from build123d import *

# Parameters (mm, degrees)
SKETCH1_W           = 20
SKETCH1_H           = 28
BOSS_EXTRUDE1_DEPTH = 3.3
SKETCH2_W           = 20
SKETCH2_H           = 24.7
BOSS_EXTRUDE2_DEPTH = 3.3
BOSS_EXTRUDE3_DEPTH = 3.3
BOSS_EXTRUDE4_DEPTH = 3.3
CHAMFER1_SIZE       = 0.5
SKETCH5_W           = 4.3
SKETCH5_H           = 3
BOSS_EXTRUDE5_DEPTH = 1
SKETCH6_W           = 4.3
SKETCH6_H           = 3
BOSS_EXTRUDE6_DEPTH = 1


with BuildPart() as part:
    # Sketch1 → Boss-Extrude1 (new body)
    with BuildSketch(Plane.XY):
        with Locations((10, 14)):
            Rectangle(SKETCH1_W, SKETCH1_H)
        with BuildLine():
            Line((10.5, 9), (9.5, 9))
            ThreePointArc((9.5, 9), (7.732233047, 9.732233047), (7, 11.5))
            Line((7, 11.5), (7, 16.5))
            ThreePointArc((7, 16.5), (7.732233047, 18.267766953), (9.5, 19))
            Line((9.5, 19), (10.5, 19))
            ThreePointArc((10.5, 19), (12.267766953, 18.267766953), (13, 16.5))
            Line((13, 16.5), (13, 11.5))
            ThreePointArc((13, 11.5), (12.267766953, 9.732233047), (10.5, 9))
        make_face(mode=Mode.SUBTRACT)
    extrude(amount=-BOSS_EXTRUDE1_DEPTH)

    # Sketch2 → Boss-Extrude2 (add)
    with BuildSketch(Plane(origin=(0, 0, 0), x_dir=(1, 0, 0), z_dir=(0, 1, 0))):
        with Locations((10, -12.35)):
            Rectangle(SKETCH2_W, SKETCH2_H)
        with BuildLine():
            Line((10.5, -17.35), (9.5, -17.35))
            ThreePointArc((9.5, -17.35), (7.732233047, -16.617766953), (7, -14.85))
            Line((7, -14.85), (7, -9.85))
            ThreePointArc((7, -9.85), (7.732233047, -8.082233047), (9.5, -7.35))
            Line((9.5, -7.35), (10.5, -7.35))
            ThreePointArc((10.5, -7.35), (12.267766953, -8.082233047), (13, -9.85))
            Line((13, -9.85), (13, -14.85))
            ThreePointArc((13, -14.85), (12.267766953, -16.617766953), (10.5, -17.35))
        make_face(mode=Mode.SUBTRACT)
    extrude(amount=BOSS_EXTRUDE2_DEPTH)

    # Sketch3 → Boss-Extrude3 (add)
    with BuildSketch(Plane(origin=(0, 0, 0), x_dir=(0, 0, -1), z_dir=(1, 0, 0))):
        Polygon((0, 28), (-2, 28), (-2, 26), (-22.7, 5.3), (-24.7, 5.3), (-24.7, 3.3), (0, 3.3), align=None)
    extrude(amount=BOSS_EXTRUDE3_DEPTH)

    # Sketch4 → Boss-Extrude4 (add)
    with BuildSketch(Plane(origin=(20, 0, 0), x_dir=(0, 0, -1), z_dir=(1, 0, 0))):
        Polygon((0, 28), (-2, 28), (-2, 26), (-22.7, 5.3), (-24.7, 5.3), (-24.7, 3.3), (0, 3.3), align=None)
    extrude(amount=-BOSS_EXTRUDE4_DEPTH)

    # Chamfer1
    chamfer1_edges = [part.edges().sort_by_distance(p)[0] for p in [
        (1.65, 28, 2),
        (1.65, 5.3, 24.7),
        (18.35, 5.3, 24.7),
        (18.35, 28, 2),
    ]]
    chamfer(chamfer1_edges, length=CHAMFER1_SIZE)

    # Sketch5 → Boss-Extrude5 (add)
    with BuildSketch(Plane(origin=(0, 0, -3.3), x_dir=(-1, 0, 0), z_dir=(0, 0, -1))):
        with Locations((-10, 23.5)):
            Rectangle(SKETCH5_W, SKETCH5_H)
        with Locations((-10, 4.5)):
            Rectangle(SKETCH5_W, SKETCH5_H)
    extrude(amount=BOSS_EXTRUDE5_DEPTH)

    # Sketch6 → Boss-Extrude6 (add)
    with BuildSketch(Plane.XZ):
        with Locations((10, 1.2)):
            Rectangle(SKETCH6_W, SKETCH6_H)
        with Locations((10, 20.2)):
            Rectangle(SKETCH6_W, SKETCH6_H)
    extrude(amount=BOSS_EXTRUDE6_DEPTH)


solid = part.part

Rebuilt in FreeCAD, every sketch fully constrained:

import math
import FreeCAD as App
import Part
import Sketcher
from FreeCAD import Vector


def edges_at(feature, points):
    """Names of the edges that pass closest to the given points."""
    edges = feature.Shape.Edges
    near = lambda p: min(range(len(edges)), key=lambda i: edges[i].distToShape(Part.Vertex(*p))[0])
    return sorted({f"Edge{near(p) + 1}" for p in points})

doc = App.newDocument("Part")
params = doc.addObject("Spreadsheet::Sheet", "Params")
for row, (alias, value) in enumerate([
    ("sketch1_radius", "2.5 mm"),
    ("sketch1_width", "20 mm"),
    ("sketch1_width2", "1 mm"),
    ("sketch1_height", "28 mm"),
    ("sketch1_height2", "5 mm"),
    ("pad1_length", "3.3 mm"),
    ("sketch2_radius", "2.5 mm"),
    ("sketch2_width", "20 mm"),
    ("sketch2_width2", "1 mm"),
    ("sketch2_height", "5 mm"),
    ("sketch2_height2", "24.7 mm"),
    ("pad2_length", "3.3 mm"),
    ("sketch3_width", "2 mm"),
    ("sketch3_width2", "24.7 mm"),
    ("pad3_length", "3.3 mm"),
    ("sketch4_width", "2 mm"),
    ("sketch4_width2", "24.7 mm"),
    ("pad4_length", "3.3 mm"),
    ("chamfer_size", "0.5 mm"),
    ("sketch5_height", "3 mm"),
    ("sketch5_width", "4.3 mm"),
    ("pad5_length", "1 mm"),
    ("sketch6_height", "3 mm"),
    ("sketch6_width", "4.3 mm"),
    ("pad6_length", "1 mm"),
], start=1):
    params.set(f"A{row}", alias)
    params.set(f"B{row}", "=" + value)
    params.setAlias(f"B{row}", alias)

body = doc.addObject("PartDesign::Body", "Body")

sketch1 = body.newObject("Sketcher::SketchObject", "Sketch")
sketch1.AttachmentSupport = (doc.getObject("XY_Plane"), [""])
sketch1.MapMode = "FlatFace"
sketch1.addGeometry(Part.LineSegment(Vector(0, 28, 0), Vector(0, 0, 0)), False)
sketch1.addGeometry(Part.LineSegment(Vector(0, 0, 0), Vector(20, 0, 0)), False)
sketch1.addGeometry(Part.LineSegment(Vector(20, 0, 0), Vector(20, 28, 0)), False)
sketch1.addGeometry(Part.LineSegment(Vector(20, 28, 0), Vector(0, 28, 0)), False)
sketch1.addGeometry(Part.ArcOfCircle(Part.Circle(Vector(10.5, 11.5, 0), Vector(0, 0, 1), 2.5), math.radians(-90), math.radians(0)), False)
sketch1.addGeometry(Part.LineSegment(Vector(10.5, 9, 0), Vector(9.5, 9, 0)), False)
sketch1.addGeometry(Part.ArcOfCircle(Part.Circle(Vector(9.5, 11.5, 0), Vector(0, 0, 1), 2.5), math.radians(180), math.radians(270)), False)
sketch1.addGeometry(Part.LineSegment(Vector(7, 11.5, 0), Vector(7, 16.5, 0)), False)
sketch1.addGeometry(Part.ArcOfCircle(Part.Circle(Vector(9.5, 16.5, 0), Vector(0, 0, 1), 2.5), math.radians(90), math.radians(180)), False)
sketch1.addGeometry(Part.LineSegment(Vector(9.5, 19, 0), Vector(10.5, 19, 0)), False)
sketch1.addGeometry(Part.ArcOfCircle(Part.Circle(Vector(10.5, 16.5, 0), Vector(0, 0, 1), 2.5), math.radians(0), math.radians(90)), False)
sketch1.addGeometry(Part.LineSegment(Vector(13, 16.5, 0), Vector(13, 11.5, 0)), False)
sketch1.addConstraint(Sketcher.Constraint("Coincident", 0, 2, 1, 1))
sketch1.addConstraint(Sketcher.Constraint("Coincident", 1, 2, 2, 1))
sketch1.addConstraint(Sketcher.Constraint("Coincident", 2, 2, 3, 1))
sketch1.addConstraint(Sketcher.Constraint("Coincident", 3, 2, 0, 1))
sketch1.addConstraint(Sketcher.Constraint("Tangent", 4, 1, 5, 1))
sketch1.addConstraint(Sketcher.Constraint("Tangent", 5, 2, 6, 2))
sketch1.addConstraint(Sketcher.Constraint("Tangent", 6, 1, 7, 1))
sketch1.addConstraint(Sketcher.Constraint("Tangent", 7, 2, 8, 2))
sketch1.addConstraint(Sketcher.Constraint("Tangent", 8, 1, 9, 1))
sketch1.addConstraint(Sketcher.Constraint("Tangent", 9, 2, 10, 2))
sketch1.addConstraint(Sketcher.Constraint("Tangent", 10, 1, 11, 1))
sketch1.addConstraint(Sketcher.Constraint("Tangent", 11, 2, 4, 2))
sketch1.addConstraint(Sketcher.Constraint("Vertical", 0))
sketch1.addConstraint(Sketcher.Constraint("Horizontal", 1))
sketch1.addConstraint(Sketcher.Constraint("Vertical", 2))
sketch1.addConstraint(Sketcher.Constraint("Horizontal", 3))
sketch1.addConstraint(Sketcher.Constraint("Horizontal", 5))
sketch1.addConstraint(Sketcher.Constraint("Vertical", 7))
sketch1.addConstraint(Sketcher.Constraint("Horizontal", 9))
sketch1.addConstraint(Sketcher.Constraint("Vertical", 11))
sketch1.addConstraint(Sketcher.Constraint("Coincident", 0, 2, -1, 1))
sketch1.addConstraint(Sketcher.Constraint("Equal", 4, 6))
sketch1.addConstraint(Sketcher.Constraint("Equal", 6, 8))
sketch1.addConstraint(Sketcher.Constraint("Equal", 8, 10))
sketch1.addConstraint(Sketcher.Constraint("Radius", 4, 2.5))
sketch1.addConstraint(Sketcher.Constraint("DistanceX", 1, 1, 1, 2, 20.0))
sketch1.addConstraint(Sketcher.Constraint("DistanceX", 5, 2, 5, 1, 1.0))
sketch1.addConstraint(Sketcher.Constraint("DistanceY", 0, 2, 0, 1, 28.0))
sketch1.addConstraint(Sketcher.Constraint("DistanceY", 7, 1, 7, 2, 5.0))
sketch1.addConstraint(Sketcher.Constraint("DistanceY", -1, 1, 4, 1, 9.0))
sketch1.addConstraint(Sketcher.Constraint("DistanceX", -1, 1, 6, 1, 7.0))
sketch1.setExpression("Constraints[24]", "Params.sketch1_radius")
sketch1.setExpression("Constraints[25]", "Params.sketch1_width")
sketch1.setExpression("Constraints[26]", "Params.sketch1_width2")
sketch1.setExpression("Constraints[27]", "Params.sketch1_height")
sketch1.setExpression("Constraints[28]", "Params.sketch1_height2")
pad1 = body.newObject("PartDesign::Pad", "Pad")
pad1.Profile = sketch1
pad1.setExpression("Length", "Params.pad1_length")
pad1.Reversed = True

sketch2 = body.newObject("Sketcher::SketchObject", "Sketch001")
sketch2.AttachmentSupport = (doc.getObject("XZ_Plane"), [""])
sketch2.MapMode = "FlatFace"
sketch2.addGeometry(Part.LineSegment(Vector(0, 0, 0), Vector(0, 24.7, 0)), False)
sketch2.addGeometry(Part.LineSegment(Vector(0, 24.7, 0), Vector(20, 24.7, 0)), False)
sketch2.addGeometry(Part.LineSegment(Vector(20, 24.7, 0), Vector(20, 0, 0)), False)
sketch2.addGeometry(Part.LineSegment(Vector(20, 0, 0), Vector(0, 0, 0)), False)
sketch2.addGeometry(Part.ArcOfCircle(Part.Circle(Vector(10.5, 14.85, 0), Vector(0, 0, 1), 2.5), math.radians(0), math.radians(90)), False)
sketch2.addGeometry(Part.LineSegment(Vector(10.5, 17.35, 0), Vector(9.5, 17.35, 0)), False)
sketch2.addGeometry(Part.ArcOfCircle(Part.Circle(Vector(9.5, 14.85, 0), Vector(0, 0, 1), 2.5), math.radians(90), math.radians(180)), False)
sketch2.addGeometry(Part.LineSegment(Vector(7, 14.85, 0), Vector(7, 9.85, 0)), False)
sketch2.addGeometry(Part.ArcOfCircle(Part.Circle(Vector(9.5, 9.85, 0), Vector(0, 0, 1), 2.5), math.radians(180), math.radians(270)), False)
sketch2.addGeometry(Part.LineSegment(Vector(9.5, 7.35, 0), Vector(10.5, 7.35, 0)), False)
sketch2.addGeometry(Part.ArcOfCircle(Part.Circle(Vector(10.5, 9.85, 0), Vector(0, 0, 1), 2.5), math.radians(-90), math.radians(0)), False)
sketch2.addGeometry(Part.LineSegment(Vector(13, 9.85, 0), Vector(13, 14.85, 0)), False)
sketch2.addConstraint(Sketcher.Constraint("Coincident", 0, 2, 1, 1))
sketch2.addConstraint(Sketcher.Constraint("Coincident", 1, 2, 2, 1))
sketch2.addConstraint(Sketcher.Constraint("Coincident", 2, 2, 3, 1))
sketch2.addConstraint(Sketcher.Constraint("Coincident", 3, 2, 0, 1))
sketch2.addConstraint(Sketcher.Constraint("Tangent", 4, 2, 5, 1))
sketch2.addConstraint(Sketcher.Constraint("Tangent", 5, 2, 6, 1))
sketch2.addConstraint(Sketcher.Constraint("Tangent", 6, 2, 7, 1))
sketch2.addConstraint(Sketcher.Constraint("Tangent", 7, 2, 8, 1))
sketch2.addConstraint(Sketcher.Constraint("Tangent", 8, 2, 9, 1))
sketch2.addConstraint(Sketcher.Constraint("Tangent", 9, 2, 10, 1))
sketch2.addConstraint(Sketcher.Constraint("Tangent", 10, 2, 11, 1))
sketch2.addConstraint(Sketcher.Constraint("Tangent", 11, 2, 4, 1))
sketch2.addConstraint(Sketcher.Constraint("Vertical", 0))
sketch2.addConstraint(Sketcher.Constraint("Horizontal", 1))
sketch2.addConstraint(Sketcher.Constraint("Vertical", 2))
sketch2.addConstraint(Sketcher.Constraint("Horizontal", 3))
sketch2.addConstraint(Sketcher.Constraint("Horizontal", 5))
sketch2.addConstraint(Sketcher.Constraint("Vertical", 7))
sketch2.addConstraint(Sketcher.Constraint("Horizontal", 9))
sketch2.addConstraint(Sketcher.Constraint("Vertical", 11))
sketch2.addConstraint(Sketcher.Constraint("Coincident", 3, 2, -1, 1))
sketch2.addConstraint(Sketcher.Constraint("Equal", 4, 6))
sketch2.addConstraint(Sketcher.Constraint("Equal", 6, 8))
sketch2.addConstraint(Sketcher.Constraint("Equal", 8, 10))
sketch2.addConstraint(Sketcher.Constraint("Radius", 4, 2.5))
sketch2.addConstraint(Sketcher.Constraint("DistanceX", 1, 1, 1, 2, 20.0))
sketch2.addConstraint(Sketcher.Constraint("DistanceX", 5, 2, 5, 1, 1.0))
sketch2.addConstraint(Sketcher.Constraint("DistanceY", 7, 2, 7, 1, 5.0))
sketch2.addConstraint(Sketcher.Constraint("DistanceY", 0, 1, 0, 2, 24.7))
sketch2.addConstraint(Sketcher.Constraint("DistanceX", -1, 1, 6, 2, 7.0))
sketch2.addConstraint(Sketcher.Constraint("DistanceY", -1, 1, 4, 3, 14.85))
sketch2.setExpression("Constraints[24]", "Params.sketch2_radius")
sketch2.setExpression("Constraints[25]", "Params.sketch2_width")
sketch2.setExpression("Constraints[26]", "Params.sketch2_width2")
sketch2.setExpression("Constraints[27]", "Params.sketch2_height")
sketch2.setExpression("Constraints[28]", "Params.sketch2_height2")
pad2 = body.newObject("PartDesign::Pad", "Pad001")
pad2.Profile = sketch2
pad2.setExpression("Length", "Params.pad2_length")
pad2.Reversed = True

sketch3 = body.newObject("Sketcher::SketchObject", "Sketch002")
sketch3.AttachmentSupport = (doc.getObject("YZ_Plane"), [""])
sketch3.MapMode = "FlatFace"
sketch3.addGeometry(Part.LineSegment(Vector(28, 0, 0), Vector(28, 2, 0)), False)
sketch3.addGeometry(Part.LineSegment(Vector(28, 2, 0), Vector(26, 2, 0)), False)
sketch3.addGeometry(Part.LineSegment(Vector(26, 2, 0), Vector(5.3, 22.7, 0)), False)
sketch3.addGeometry(Part.LineSegment(Vector(5.3, 22.7, 0), Vector(5.3, 24.7, 0)), False)
sketch3.addGeometry(Part.LineSegment(Vector(5.3, 24.7, 0), Vector(3.3, 24.7, 0)), False)
sketch3.addGeometry(Part.LineSegment(Vector(3.3, 24.7, 0), Vector(3.3, 0, 0)), False)
sketch3.addGeometry(Part.LineSegment(Vector(3.3, 0, 0), Vector(28, 0, 0)), False)
sketch3.addConstraint(Sketcher.Constraint("Coincident", 0, 2, 1, 1))
sketch3.addConstraint(Sketcher.Constraint("Coincident", 1, 2, 2, 1))
sketch3.addConstraint(Sketcher.Constraint("Coincident", 2, 2, 3, 1))
sketch3.addConstraint(Sketcher.Constraint("Coincident", 3, 2, 4, 1))
sketch3.addConstraint(Sketcher.Constraint("Coincident", 4, 2, 5, 1))
sketch3.addConstraint(Sketcher.Constraint("Coincident", 5, 2, 6, 1))
sketch3.addConstraint(Sketcher.Constraint("Coincident", 6, 2, 0, 1))
sketch3.addConstraint(Sketcher.Constraint("Vertical", 0))
sketch3.addConstraint(Sketcher.Constraint("Horizontal", 1))
sketch3.addConstraint(Sketcher.Constraint("Vertical", 3))
sketch3.addConstraint(Sketcher.Constraint("Horizontal", 4))
sketch3.addConstraint(Sketcher.Constraint("Vertical", 5))
sketch3.addConstraint(Sketcher.Constraint("Horizontal", 6))
sketch3.addConstraint(Sketcher.Constraint("PointOnObject", 5, 2, -1))
sketch3.addConstraint(Sketcher.Constraint("Equal", 1, 4))
sketch3.addConstraint(Sketcher.Constraint("Equal", 4, 0))
sketch3.addConstraint(Sketcher.Constraint("Equal", 0, 3))
sketch3.addConstraint(Sketcher.Constraint("Equal", 6, 5))
sketch3.addConstraint(Sketcher.Constraint("DistanceX", 1, 2, 1, 1, 2.0))
sketch3.addConstraint(Sketcher.Constraint("DistanceX", 6, 1, 6, 2, 24.7))
sketch3.addConstraint(Sketcher.Constraint("DistanceX", -1, 1, 0, 2, 28.0))
sketch3.setExpression("Constraints[18]", "Params.sketch3_width")
sketch3.setExpression("Constraints[19]", "Params.sketch3_width2")
pad3 = body.newObject("PartDesign::Pad", "Pad002")
pad3.Profile = sketch3
pad3.setExpression("Length", "Params.pad3_length")

sketch4 = body.newObject("Sketcher::SketchObject", "Sketch003")
sketch4.AttachmentSupport = (doc.getObject("YZ_Plane"), [""])
sketch4.MapMode = "FlatFace"
sketch4.AttachmentOffset = App.Placement(Vector(0, 0, 20), App.Rotation())
sketch4.addGeometry(Part.LineSegment(Vector(28, 0, 0), Vector(28, 2, 0)), False)
sketch4.addGeometry(Part.LineSegment(Vector(28, 2, 0), Vector(26, 2, 0)), False)
sketch4.addGeometry(Part.LineSegment(Vector(26, 2, 0), Vector(5.3, 22.7, 0)), False)
sketch4.addGeometry(Part.LineSegment(Vector(5.3, 22.7, 0), Vector(5.3, 24.7, 0)), False)
sketch4.addGeometry(Part.LineSegment(Vector(5.3, 24.7, 0), Vector(3.3, 24.7, 0)), False)
sketch4.addGeometry(Part.LineSegment(Vector(3.3, 24.7, 0), Vector(3.3, 0, 0)), False)
sketch4.addGeometry(Part.LineSegment(Vector(3.3, 0, 0), Vector(28, 0, 0)), False)
sketch4.addConstraint(Sketcher.Constraint("Coincident", 0, 2, 1, 1))
sketch4.addConstraint(Sketcher.Constraint("Coincident", 1, 2, 2, 1))
sketch4.addConstraint(Sketcher.Constraint("Coincident", 2, 2, 3, 1))
sketch4.addConstraint(Sketcher.Constraint("Coincident", 3, 2, 4, 1))
sketch4.addConstraint(Sketcher.Constraint("Coincident", 4, 2, 5, 1))
sketch4.addConstraint(Sketcher.Constraint("Coincident", 5, 2, 6, 1))
sketch4.addConstraint(Sketcher.Constraint("Coincident", 6, 2, 0, 1))
sketch4.addConstraint(Sketcher.Constraint("Vertical", 0))
sketch4.addConstraint(Sketcher.Constraint("Horizontal", 1))
sketch4.addConstraint(Sketcher.Constraint("Vertical", 3))
sketch4.addConstraint(Sketcher.Constraint("Horizontal", 4))
sketch4.addConstraint(Sketcher.Constraint("Vertical", 5))
sketch4.addConstraint(Sketcher.Constraint("Horizontal", 6))
sketch4.addConstraint(Sketcher.Constraint("PointOnObject", 5, 2, -1))
sketch4.addConstraint(Sketcher.Constraint("Equal", 1, 4))
sketch4.addConstraint(Sketcher.Constraint("Equal", 4, 0))
sketch4.addConstraint(Sketcher.Constraint("Equal", 0, 3))
sketch4.addConstraint(Sketcher.Constraint("Equal", 6, 5))
sketch4.addConstraint(Sketcher.Constraint("DistanceX", 1, 2, 1, 1, 2.0))
sketch4.addConstraint(Sketcher.Constraint("DistanceX", 6, 1, 6, 2, 24.7))
sketch4.addConstraint(Sketcher.Constraint("DistanceX", -1, 1, 0, 2, 28.0))
sketch4.setExpression("Constraints[18]", "Params.sketch4_width")
sketch4.setExpression("Constraints[19]", "Params.sketch4_width2")
pad4 = body.newObject("PartDesign::Pad", "Pad003")
pad4.Profile = sketch4
pad4.setExpression("Length", "Params.pad4_length")
pad4.Reversed = True
doc.recompute()

chamfer = body.newObject("PartDesign::Chamfer", "Chamfer")
chamfer.Base = (pad4, edges_at(pad4, [
    (1.65, 28, 2),
    (1.65, 5.3, 24.7),
    (18.35, 5.3, 24.7),
    (18.35, 28, 2),
]))
chamfer.setExpression("Size", "Params.chamfer_size")

sketch5 = body.newObject("Sketcher::SketchObject", "Sketch004")
sketch5.AttachmentSupport = (doc.getObject("XY_Plane"), [""])
sketch5.MapMode = "FlatFace"
sketch5.AttachmentOffset = App.Placement(Vector(0, 0, -3.3), App.Rotation())
sketch5.addGeometry(Part.LineSegment(Vector(12.15, 25, 0), Vector(12.15, 22, 0)), False)
sketch5.addGeometry(Part.LineSegment(Vector(12.15, 22, 0), Vector(7.85, 22, 0)), False)
sketch5.addGeometry(Part.LineSegment(Vector(7.85, 22, 0), Vector(7.85, 25, 0)), False)
sketch5.addGeometry(Part.LineSegment(Vector(7.85, 25, 0), Vector(12.15, 25, 0)), False)
sketch5.addGeometry(Part.LineSegment(Vector(12.15, 6, 0), Vector(12.15, 3, 0)), False)
sketch5.addGeometry(Part.LineSegment(Vector(12.15, 3, 0), Vector(7.85, 3, 0)), False)
sketch5.addGeometry(Part.LineSegment(Vector(7.85, 3, 0), Vector(7.85, 6, 0)), False)
sketch5.addGeometry(Part.LineSegment(Vector(7.85, 6, 0), Vector(12.15, 6, 0)), False)
sketch5.addConstraint(Sketcher.Constraint("Coincident", 0, 2, 1, 1))
sketch5.addConstraint(Sketcher.Constraint("Coincident", 1, 2, 2, 1))
sketch5.addConstraint(Sketcher.Constraint("Coincident", 2, 2, 3, 1))
sketch5.addConstraint(Sketcher.Constraint("Coincident", 3, 2, 0, 1))
sketch5.addConstraint(Sketcher.Constraint("Coincident", 4, 2, 5, 1))
sketch5.addConstraint(Sketcher.Constraint("Coincident", 5, 2, 6, 1))
sketch5.addConstraint(Sketcher.Constraint("Coincident", 6, 2, 7, 1))
sketch5.addConstraint(Sketcher.Constraint("Coincident", 7, 2, 4, 1))
sketch5.addConstraint(Sketcher.Constraint("Vertical", 0))
sketch5.addConstraint(Sketcher.Constraint("Horizontal", 1))
sketch5.addConstraint(Sketcher.Constraint("Vertical", 2))
sketch5.addConstraint(Sketcher.Constraint("Horizontal", 3))
sketch5.addConstraint(Sketcher.Constraint("Vertical", 4))
sketch5.addConstraint(Sketcher.Constraint("Horizontal", 5))
sketch5.addConstraint(Sketcher.Constraint("Vertical", 6))
sketch5.addConstraint(Sketcher.Constraint("Horizontal", 7))
sketch5.addConstraint(Sketcher.Constraint("Vertical", 3, 2, 4, 2))
sketch5.addConstraint(Sketcher.Constraint("Vertical", 2, 2, 5, 2))
sketch5.addConstraint(Sketcher.Constraint("Equal", 2, 4))
sketch5.addConstraint(Sketcher.Constraint("DistanceY", 0, 2, 0, 1, 3.0))
sketch5.addConstraint(Sketcher.Constraint("DistanceX", 1, 2, 1, 1, 4.3))
sketch5.addConstraint(Sketcher.Constraint("DistanceY", -1, 1, 0, 2, 22.0))
sketch5.addConstraint(Sketcher.Constraint("DistanceY", -1, 1, 4, 2, 3.0))
sketch5.addConstraint(Sketcher.Constraint("DistanceX", -1, 1, 0, 2, 12.15))
sketch5.setExpression("Constraints[19]", "Params.sketch5_height")
sketch5.setExpression("Constraints[20]", "Params.sketch5_width")
pad5 = body.newObject("PartDesign::Pad", "Pad004")
pad5.Profile = sketch5
pad5.setExpression("Length", "Params.pad5_length")
pad5.Reversed = True

sketch6 = body.newObject("Sketcher::SketchObject", "Sketch005")
sketch6.AttachmentSupport = (doc.getObject("XZ_Plane"), [""])
sketch6.MapMode = "FlatFace"
sketch6.addGeometry(Part.LineSegment(Vector(7.85, 2.7, 0), Vector(7.85, -0.3, 0)), False)
sketch6.addGeometry(Part.LineSegment(Vector(7.85, -0.3, 0), Vector(12.15, -0.3, 0)), False)
sketch6.addGeometry(Part.LineSegment(Vector(12.15, -0.3, 0), Vector(12.15, 2.7, 0)), False)
sketch6.addGeometry(Part.LineSegment(Vector(12.15, 2.7, 0), Vector(7.85, 2.7, 0)), False)
sketch6.addGeometry(Part.LineSegment(Vector(7.85, 21.7, 0), Vector(7.85, 18.7, 0)), False)
sketch6.addGeometry(Part.LineSegment(Vector(7.85, 18.7, 0), Vector(12.15, 18.7, 0)), False)
sketch6.addGeometry(Part.LineSegment(Vector(12.15, 18.7, 0), Vector(12.15, 21.7, 0)), False)
sketch6.addGeometry(Part.LineSegment(Vector(12.15, 21.7, 0), Vector(7.85, 21.7, 0)), False)
sketch6.addConstraint(Sketcher.Constraint("Coincident", 0, 2, 1, 1))
sketch6.addConstraint(Sketcher.Constraint("Coincident", 1, 2, 2, 1))
sketch6.addConstraint(Sketcher.Constraint("Coincident", 2, 2, 3, 1))
sketch6.addConstraint(Sketcher.Constraint("Coincident", 3, 2, 0, 1))
sketch6.addConstraint(Sketcher.Constraint("Coincident", 4, 2, 5, 1))
sketch6.addConstraint(Sketcher.Constraint("Coincident", 5, 2, 6, 1))
sketch6.addConstraint(Sketcher.Constraint("Coincident", 6, 2, 7, 1))
sketch6.addConstraint(Sketcher.Constraint("Coincident", 7, 2, 4, 1))
sketch6.addConstraint(Sketcher.Constraint("Vertical", 0))
sketch6.addConstraint(Sketcher.Constraint("Horizontal", 1))
sketch6.addConstraint(Sketcher.Constraint("Vertical", 2))
sketch6.addConstraint(Sketcher.Constraint("Horizontal", 3))
sketch6.addConstraint(Sketcher.Constraint("Vertical", 4))
sketch6.addConstraint(Sketcher.Constraint("Horizontal", 5))
sketch6.addConstraint(Sketcher.Constraint("Vertical", 6))
sketch6.addConstraint(Sketcher.Constraint("Horizontal", 7))
sketch6.addConstraint(Sketcher.Constraint("Vertical", 3, 2, 4, 2))
sketch6.addConstraint(Sketcher.Constraint("Vertical", 2, 2, 5, 2))
sketch6.addConstraint(Sketcher.Constraint("Equal", 2, 4))
sketch6.addConstraint(Sketcher.Constraint("DistanceY", 0, 2, 0, 1, 3.0))
sketch6.addConstraint(Sketcher.Constraint("DistanceX", 1, 1, 1, 2, 4.3))
sketch6.addConstraint(Sketcher.Constraint("DistanceY", 3, 2, 4, 2, 16.0))
sketch6.addConstraint(Sketcher.Constraint("DistanceY", 0, 2, -1, 1, 0.3))
sketch6.addConstraint(Sketcher.Constraint("DistanceX", -1, 1, 0, 2, 7.85))
sketch6.setExpression("Constraints[19]", "Params.sketch6_height")
sketch6.setExpression("Constraints[20]", "Params.sketch6_width")
pad6 = body.newObject("PartDesign::Pad", "Pad005")
pad6.Profile = sketch6
pad6.setExpression("Length", "Params.pad6_length")

doc.recompute()
